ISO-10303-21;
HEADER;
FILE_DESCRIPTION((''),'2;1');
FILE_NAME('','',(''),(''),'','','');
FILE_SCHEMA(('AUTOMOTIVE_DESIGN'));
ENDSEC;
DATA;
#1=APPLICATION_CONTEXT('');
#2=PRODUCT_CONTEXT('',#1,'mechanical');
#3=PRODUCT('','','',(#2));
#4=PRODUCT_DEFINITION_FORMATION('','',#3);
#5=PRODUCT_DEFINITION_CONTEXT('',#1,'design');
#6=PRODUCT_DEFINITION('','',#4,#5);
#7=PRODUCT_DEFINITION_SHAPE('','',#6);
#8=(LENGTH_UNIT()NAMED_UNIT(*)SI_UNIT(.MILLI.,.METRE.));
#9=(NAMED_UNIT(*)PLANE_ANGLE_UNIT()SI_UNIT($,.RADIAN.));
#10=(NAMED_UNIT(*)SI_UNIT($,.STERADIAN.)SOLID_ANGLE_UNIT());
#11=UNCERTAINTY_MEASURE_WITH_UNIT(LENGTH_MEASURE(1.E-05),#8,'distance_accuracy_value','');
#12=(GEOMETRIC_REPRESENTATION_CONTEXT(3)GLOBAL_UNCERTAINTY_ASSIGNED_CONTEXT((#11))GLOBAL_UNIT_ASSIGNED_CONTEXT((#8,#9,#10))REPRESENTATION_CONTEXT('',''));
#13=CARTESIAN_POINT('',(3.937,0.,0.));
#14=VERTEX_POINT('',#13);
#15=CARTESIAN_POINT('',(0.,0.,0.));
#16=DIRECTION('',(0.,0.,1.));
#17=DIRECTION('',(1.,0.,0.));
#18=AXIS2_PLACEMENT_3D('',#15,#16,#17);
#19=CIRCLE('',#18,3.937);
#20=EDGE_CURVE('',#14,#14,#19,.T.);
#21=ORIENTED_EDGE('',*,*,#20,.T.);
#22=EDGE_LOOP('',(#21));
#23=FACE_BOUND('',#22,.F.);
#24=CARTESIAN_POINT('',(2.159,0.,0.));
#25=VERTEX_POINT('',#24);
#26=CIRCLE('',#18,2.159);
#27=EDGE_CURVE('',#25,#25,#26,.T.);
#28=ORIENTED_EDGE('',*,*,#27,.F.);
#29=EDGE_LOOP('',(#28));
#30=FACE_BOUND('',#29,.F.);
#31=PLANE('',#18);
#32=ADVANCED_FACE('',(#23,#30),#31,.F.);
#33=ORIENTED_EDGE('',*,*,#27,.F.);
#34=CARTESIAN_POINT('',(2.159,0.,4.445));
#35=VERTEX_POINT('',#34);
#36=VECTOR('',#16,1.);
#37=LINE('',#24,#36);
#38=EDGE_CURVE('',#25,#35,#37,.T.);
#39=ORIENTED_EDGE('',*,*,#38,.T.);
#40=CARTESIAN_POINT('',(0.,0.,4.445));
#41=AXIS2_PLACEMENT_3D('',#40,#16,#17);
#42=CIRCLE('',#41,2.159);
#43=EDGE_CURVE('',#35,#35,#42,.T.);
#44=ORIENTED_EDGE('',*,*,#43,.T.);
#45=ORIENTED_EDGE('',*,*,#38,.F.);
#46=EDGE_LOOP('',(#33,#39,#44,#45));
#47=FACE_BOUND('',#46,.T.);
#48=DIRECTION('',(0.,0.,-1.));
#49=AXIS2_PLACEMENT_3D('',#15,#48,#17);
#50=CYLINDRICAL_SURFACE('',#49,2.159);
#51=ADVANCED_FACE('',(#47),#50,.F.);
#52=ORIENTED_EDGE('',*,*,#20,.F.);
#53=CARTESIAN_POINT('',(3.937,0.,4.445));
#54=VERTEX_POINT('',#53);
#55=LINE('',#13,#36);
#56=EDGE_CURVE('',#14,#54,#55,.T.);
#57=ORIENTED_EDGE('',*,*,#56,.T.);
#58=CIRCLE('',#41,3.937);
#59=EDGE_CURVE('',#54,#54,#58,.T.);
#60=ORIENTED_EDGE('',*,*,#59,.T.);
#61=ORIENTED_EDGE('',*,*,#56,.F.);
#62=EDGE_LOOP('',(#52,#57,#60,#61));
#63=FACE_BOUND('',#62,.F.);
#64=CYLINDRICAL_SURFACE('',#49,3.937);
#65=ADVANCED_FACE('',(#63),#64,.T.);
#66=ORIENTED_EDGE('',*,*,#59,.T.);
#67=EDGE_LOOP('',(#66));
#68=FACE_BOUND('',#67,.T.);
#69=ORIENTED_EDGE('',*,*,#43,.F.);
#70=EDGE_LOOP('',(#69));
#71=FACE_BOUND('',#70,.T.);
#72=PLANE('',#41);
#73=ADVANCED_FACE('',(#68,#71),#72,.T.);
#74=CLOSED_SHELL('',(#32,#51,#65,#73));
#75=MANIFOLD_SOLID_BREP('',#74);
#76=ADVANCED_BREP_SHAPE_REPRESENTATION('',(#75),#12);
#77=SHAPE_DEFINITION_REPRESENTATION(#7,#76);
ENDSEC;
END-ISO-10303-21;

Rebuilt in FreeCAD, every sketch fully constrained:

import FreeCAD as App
import Part
import Sketcher

V = App.Vector
Q = App.Units.Quantity

doc = App.newDocument("Part")
body = doc.addObject("PartDesign::Body", "Body")

# Sketch on XY plane
sketch1 = body.newObject("Sketcher::SketchObject", "Sketch")
sketch1.AttachmentSupport = (doc.getObject("XY_Plane"), [""])
sketch1.MapMode = "FlatFace"
sketch1.addGeometry([
    Part.Circle(V(0, 0, 0), V(0, 0, 1), 3.9),
    Part.Circle(V(0, 0, 0), V(0, 0, 1), 2.2),
], False)
sketch1.addConstraint([
    Sketcher.Constraint("Coincident", 0, 3, -1, 1),
    Sketcher.Constraint("Coincident", 1, 3, -1, 1),
    Sketcher.Constraint("Diameter", 1, Q("0.17 in")),
    Sketcher.Constraint("Diameter", 0, Q("0.31 in")),
])
pad1 = body.newObject("PartDesign::Pad", "Pad")
pad1.Profile = sketch1
pad1.Length = Q("0.175 in")

doc.recompute()
